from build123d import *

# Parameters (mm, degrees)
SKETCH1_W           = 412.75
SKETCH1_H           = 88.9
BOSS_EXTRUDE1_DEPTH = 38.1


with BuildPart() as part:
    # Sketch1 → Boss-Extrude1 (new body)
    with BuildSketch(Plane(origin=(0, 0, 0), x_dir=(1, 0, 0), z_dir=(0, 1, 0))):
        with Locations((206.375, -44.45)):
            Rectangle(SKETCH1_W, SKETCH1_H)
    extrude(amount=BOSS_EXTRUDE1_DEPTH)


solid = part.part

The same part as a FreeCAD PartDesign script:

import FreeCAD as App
import Part
import Sketcher
from FreeCAD import Vector
Q = App.Units.Quantity


def add_polygon(sketch, points):
    """Adds a closed chain of lines whose ends are joined by coincident constraints."""
    first, n = sketch.GeometryCount, len(points)
    for a, b in zip(points, points[1:] + points[:1]):
        sketch.addGeometry(Part.LineSegment(App.Vector(*a, 0), App.Vector(*b, 0)), False)
    for i in range(n):
        sketch.addConstraint(Sketcher.Constraint("Coincident", first + i, 2, first + (i + 1) % n, 1))

doc = App.newDocument("Part")
body = doc.addObject("PartDesign::Body", "Body")

sketch1 = body.newObject("Sketcher::SketchObject", "Sketch")
sketch1.AttachmentSupport = (doc.getObject("XZ_Plane"), [""])
sketch1.MapMode = "FlatFace"
add_polygon(sketch1, [(0, 0), (0, 88.9), (412.75, 88.9), (412.75, 0)])
sketch1.addConstraint(Sketcher.Constraint("Vertical", 0))
sketch1.addConstraint(Sketcher.Constraint("Horizontal", 1))
sketch1.addConstraint(Sketcher.Constraint("Vertical", 2))
sketch1.addConstraint(Sketcher.Constraint("Horizontal", 3))
sketch1.addConstraint(Sketcher.Constraint("Coincident", 3, 2, -1, 1))
sketch1.addConstraint(Sketcher.Constraint("DistanceY", 0, 1, 0, 2, Q("3.5 in")))
sketch1.addConstraint(Sketcher.Constraint("DistanceX", 1, 1, 1, 2, Q("16.25 in")))
pad1 = body.newObject("PartDesign::Pad", "Pad")
pad1.Profile = sketch1
pad1.Length = Q("1.5 in")
pad1.Reversed = True

doc.recompute()
